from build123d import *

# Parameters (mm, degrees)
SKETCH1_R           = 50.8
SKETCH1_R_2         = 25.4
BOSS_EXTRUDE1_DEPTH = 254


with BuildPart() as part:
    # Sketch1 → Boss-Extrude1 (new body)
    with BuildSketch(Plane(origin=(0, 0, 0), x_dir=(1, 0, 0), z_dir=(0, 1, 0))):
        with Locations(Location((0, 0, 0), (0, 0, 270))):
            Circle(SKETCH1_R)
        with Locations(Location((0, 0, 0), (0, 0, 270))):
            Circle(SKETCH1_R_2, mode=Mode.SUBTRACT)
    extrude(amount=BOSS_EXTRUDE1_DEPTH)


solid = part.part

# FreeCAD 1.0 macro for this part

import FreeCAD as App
import Part
import Sketcher
from FreeCAD import Vector
Q = App.Units.Quantity

doc = App.newDocument("Part")
params = doc.addObject("Spreadsheet::Sheet", "Params")
for row, (alias, value) in enumerate([
    ("sketch1_diameter", "4 in"),
    ("sketch1_diameter2", "2 in"),
    ("pad1_length", "10 in"),
], start=1):
    params.set(f"A{row}", alias)
    params.set(f"B{row}", "=" + value)
    params.setAlias(f"B{row}", alias)

body = doc.addObject("PartDesign::Body", "Body")

# Sketch on XZ plane
sketch1 = body.newObject("Sketcher::SketchObject", "Sketch")
sketch1.AttachmentSupport = (doc.getObject("XZ_Plane"), [""])
sketch1.MapMode = "FlatFace"
sketch1.addGeometry(Part.Circle(Vector(0, 0, 0), Vector(0, 0, 1), 51), False)
sketch1.addGeometry(Part.Circle(Vector(0, 0, 0), Vector(0, 0, 1), 25), False)
sketch1.addConstraint(Sketcher.Constraint("Coincident", 0, 3, -1, 1))
sketch1.addConstraint(Sketcher.Constraint("Coincident", 1, 3, -1, 1))
sketch1.addConstraint(Sketcher.Constraint("Diameter", 0, Q("4 in")))
sketch1.addConstraint(Sketcher.Constraint("Diameter", 1, Q("2 in")))
sketch1.setExpression("Constraints[2]", "Params.sketch1_diameter")
sketch1.setExpression("Constraints[3]", "Params.sketch1_diameter2")
pad1 = body.newObject("PartDesign::Pad", "Pad")
pad1.Profile = sketch1
pad1.setExpression("Length", "Params.pad1_length")
pad1.Reversed = True

doc.recompute()
